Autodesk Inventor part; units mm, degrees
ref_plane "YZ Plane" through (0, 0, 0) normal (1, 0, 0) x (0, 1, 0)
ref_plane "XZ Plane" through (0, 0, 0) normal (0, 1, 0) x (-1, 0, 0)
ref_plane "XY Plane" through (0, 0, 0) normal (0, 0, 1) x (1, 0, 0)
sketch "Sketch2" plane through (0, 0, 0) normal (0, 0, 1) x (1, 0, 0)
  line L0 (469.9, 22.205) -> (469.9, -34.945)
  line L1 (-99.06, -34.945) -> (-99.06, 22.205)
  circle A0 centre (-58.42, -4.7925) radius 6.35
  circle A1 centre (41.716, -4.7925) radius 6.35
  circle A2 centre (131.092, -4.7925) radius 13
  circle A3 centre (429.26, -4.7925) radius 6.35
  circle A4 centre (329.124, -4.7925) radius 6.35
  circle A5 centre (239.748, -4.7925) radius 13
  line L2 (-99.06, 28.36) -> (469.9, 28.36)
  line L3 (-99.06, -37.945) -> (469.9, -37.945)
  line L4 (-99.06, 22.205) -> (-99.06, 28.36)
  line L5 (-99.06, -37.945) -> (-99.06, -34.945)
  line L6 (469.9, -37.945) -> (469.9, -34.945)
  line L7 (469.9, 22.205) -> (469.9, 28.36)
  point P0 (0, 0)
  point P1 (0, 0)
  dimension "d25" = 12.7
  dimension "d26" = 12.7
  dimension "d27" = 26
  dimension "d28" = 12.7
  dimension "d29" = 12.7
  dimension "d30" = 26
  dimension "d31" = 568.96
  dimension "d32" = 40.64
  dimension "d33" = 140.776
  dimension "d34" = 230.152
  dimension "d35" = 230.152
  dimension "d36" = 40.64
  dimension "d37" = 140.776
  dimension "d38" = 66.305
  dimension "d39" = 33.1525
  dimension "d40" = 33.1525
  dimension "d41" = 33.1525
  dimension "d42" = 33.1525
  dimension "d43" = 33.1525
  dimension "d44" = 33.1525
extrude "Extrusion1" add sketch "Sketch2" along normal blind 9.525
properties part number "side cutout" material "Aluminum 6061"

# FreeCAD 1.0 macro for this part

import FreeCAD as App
import Part
import Sketcher

V = App.Vector
Q = App.Units.Quantity

doc = App.newDocument("Part")
body = doc.addObject("PartDesign::Body", "Body")

sketch1 = body.newObject("Sketcher::SketchObject", "Sketch")
sketch1.AttachmentSupport = (doc.getObject("XY_Plane"), [""])
sketch1.MapMode = "FlatFace"
sketch1.addGeometry(Part.LineSegment(V(470, -38, 0), V(470, 28, 0)), False)
sketch1.addGeometry(Part.LineSegment(V(470, 28, 0), V(-99, 28, 0)), False)
sketch1.addGeometry(Part.LineSegment(V(-99, 28, 0), V(-99, -38, 0)), False)
sketch1.addGeometry(Part.LineSegment(V(-99, -38, 0), V(470, -38, 0)), False)
sketch1.addGeometry(Part.Circle(V(-58, -5, 0), V(0, 0, 1), 6), False)
sketch1.addGeometry(Part.Circle(V(42, -5, 0), V(0, 0, 1), 6), False)
sketch1.addGeometry(Part.Circle(V(131, -5, 0), V(0, 0, 1), 13), False)
sketch1.addGeometry(Part.Circle(V(240, -5, 0), V(0, 0, 1), 13), False)
sketch1.addGeometry(Part.Circle(V(329, -5, 0), V(0, 0, 1), 6), False)
sketch1.addGeometry(Part.Circle(V(429, -5, 0), V(0, 0, 1), 6), False)
sketch1.addConstraint(Sketcher.Constraint("Coincident", 0, 2, 1, 1))
sketch1.addConstraint(Sketcher.Constraint("Coincident", 1, 2, 2, 1))
sketch1.addConstraint(Sketcher.Constraint("Coincident", 2, 2, 3, 1))
sketch1.addConstraint(Sketcher.Constraint("Coincident", 3, 2, 0, 1))
sketch1.addConstraint(Sketcher.Constraint("Vertical", 0))
sketch1.addConstraint(Sketcher.Constraint("Horizontal", 1))
sketch1.addConstraint(Sketcher.Constraint("Vertical", 2))
sketch1.addConstraint(Sketcher.Constraint("Horizontal", 3))
sketch1.addConstraint(Sketcher.Constraint("Equal", 4, 5))
sketch1.addConstraint(Sketcher.Constraint("Equal", 6, 7))
sketch1.addConstraint(Sketcher.Constraint("Equal", 5, 8))
sketch1.addConstraint(Sketcher.Constraint("Equal", 8, 9))
sketch1.addConstraint(Sketcher.Constraint("Horizontal", 4, 3, 5, 3))
sketch1.addConstraint(Sketcher.Constraint("Horizontal", 5, 3, 6, 3))
sketch1.addConstraint(Sketcher.Constraint("Horizontal", 6, 3, 7, 3))
sketch1.addConstraint(Sketcher.Constraint("Horizontal", 7, 3, 8, 3))
sketch1.addConstraint(Sketcher.Constraint("Horizontal", 8, 3, 9, 3))
sketch1.addConstraint(Sketcher.Constraint("Diameter", 4, Q("0.5 in")))
sketch1.addConstraint(Sketcher.Constraint("DistanceX", 1, 2, 1, 1, Q("22.4 in")))
sketch1.addConstraint(Sketcher.Constraint("DistanceX", 9, 3, 0, 2, Q("1.6 in")))
sketch1.addConstraint(Sketcher.Constraint("DistanceX", 1, 2, 4, 3, Q("1.6 in")))
sketch1.addConstraint(Sketcher.Constraint("Diameter", 6, 26.0))
sketch1.addConstraint(Sketcher.Constraint("DistanceY", 0, 1, 0, 2, 66.305))
sketch1.addConstraint(Sketcher.Constraint("DistanceX", 4, 3, -1, 1, Q("2.3 in")))
sketch1.addConstraint(Sketcher.Constraint("DistanceX", 7, 3, 0, 2, Q("9.0611 in")))
sketch1.addConstraint(Sketcher.Constraint("DistanceX", 1, 2, 6, 3, Q("9.0611 in")))
sketch1.addConstraint(Sketcher.Constraint("DistanceY", 9, 3, 0, 2, 33.1525))
sketch1.addConstraint(Sketcher.Constraint("DistanceX", 8, 3, 0, 2, 140.776))
sketch1.addConstraint(Sketcher.Constraint("DistanceX", 1, 2, 5, 3, 140.776))
sketch1.addConstraint(Sketcher.Constraint("DistanceY", 2, 2, -1, 1, Q("1.4939 in")))
pad1 = body.newObject("PartDesign::Pad", "Pad")
pad1.Profile = sketch1
pad1.Length = Q("0.375 in")

doc.recompute()
